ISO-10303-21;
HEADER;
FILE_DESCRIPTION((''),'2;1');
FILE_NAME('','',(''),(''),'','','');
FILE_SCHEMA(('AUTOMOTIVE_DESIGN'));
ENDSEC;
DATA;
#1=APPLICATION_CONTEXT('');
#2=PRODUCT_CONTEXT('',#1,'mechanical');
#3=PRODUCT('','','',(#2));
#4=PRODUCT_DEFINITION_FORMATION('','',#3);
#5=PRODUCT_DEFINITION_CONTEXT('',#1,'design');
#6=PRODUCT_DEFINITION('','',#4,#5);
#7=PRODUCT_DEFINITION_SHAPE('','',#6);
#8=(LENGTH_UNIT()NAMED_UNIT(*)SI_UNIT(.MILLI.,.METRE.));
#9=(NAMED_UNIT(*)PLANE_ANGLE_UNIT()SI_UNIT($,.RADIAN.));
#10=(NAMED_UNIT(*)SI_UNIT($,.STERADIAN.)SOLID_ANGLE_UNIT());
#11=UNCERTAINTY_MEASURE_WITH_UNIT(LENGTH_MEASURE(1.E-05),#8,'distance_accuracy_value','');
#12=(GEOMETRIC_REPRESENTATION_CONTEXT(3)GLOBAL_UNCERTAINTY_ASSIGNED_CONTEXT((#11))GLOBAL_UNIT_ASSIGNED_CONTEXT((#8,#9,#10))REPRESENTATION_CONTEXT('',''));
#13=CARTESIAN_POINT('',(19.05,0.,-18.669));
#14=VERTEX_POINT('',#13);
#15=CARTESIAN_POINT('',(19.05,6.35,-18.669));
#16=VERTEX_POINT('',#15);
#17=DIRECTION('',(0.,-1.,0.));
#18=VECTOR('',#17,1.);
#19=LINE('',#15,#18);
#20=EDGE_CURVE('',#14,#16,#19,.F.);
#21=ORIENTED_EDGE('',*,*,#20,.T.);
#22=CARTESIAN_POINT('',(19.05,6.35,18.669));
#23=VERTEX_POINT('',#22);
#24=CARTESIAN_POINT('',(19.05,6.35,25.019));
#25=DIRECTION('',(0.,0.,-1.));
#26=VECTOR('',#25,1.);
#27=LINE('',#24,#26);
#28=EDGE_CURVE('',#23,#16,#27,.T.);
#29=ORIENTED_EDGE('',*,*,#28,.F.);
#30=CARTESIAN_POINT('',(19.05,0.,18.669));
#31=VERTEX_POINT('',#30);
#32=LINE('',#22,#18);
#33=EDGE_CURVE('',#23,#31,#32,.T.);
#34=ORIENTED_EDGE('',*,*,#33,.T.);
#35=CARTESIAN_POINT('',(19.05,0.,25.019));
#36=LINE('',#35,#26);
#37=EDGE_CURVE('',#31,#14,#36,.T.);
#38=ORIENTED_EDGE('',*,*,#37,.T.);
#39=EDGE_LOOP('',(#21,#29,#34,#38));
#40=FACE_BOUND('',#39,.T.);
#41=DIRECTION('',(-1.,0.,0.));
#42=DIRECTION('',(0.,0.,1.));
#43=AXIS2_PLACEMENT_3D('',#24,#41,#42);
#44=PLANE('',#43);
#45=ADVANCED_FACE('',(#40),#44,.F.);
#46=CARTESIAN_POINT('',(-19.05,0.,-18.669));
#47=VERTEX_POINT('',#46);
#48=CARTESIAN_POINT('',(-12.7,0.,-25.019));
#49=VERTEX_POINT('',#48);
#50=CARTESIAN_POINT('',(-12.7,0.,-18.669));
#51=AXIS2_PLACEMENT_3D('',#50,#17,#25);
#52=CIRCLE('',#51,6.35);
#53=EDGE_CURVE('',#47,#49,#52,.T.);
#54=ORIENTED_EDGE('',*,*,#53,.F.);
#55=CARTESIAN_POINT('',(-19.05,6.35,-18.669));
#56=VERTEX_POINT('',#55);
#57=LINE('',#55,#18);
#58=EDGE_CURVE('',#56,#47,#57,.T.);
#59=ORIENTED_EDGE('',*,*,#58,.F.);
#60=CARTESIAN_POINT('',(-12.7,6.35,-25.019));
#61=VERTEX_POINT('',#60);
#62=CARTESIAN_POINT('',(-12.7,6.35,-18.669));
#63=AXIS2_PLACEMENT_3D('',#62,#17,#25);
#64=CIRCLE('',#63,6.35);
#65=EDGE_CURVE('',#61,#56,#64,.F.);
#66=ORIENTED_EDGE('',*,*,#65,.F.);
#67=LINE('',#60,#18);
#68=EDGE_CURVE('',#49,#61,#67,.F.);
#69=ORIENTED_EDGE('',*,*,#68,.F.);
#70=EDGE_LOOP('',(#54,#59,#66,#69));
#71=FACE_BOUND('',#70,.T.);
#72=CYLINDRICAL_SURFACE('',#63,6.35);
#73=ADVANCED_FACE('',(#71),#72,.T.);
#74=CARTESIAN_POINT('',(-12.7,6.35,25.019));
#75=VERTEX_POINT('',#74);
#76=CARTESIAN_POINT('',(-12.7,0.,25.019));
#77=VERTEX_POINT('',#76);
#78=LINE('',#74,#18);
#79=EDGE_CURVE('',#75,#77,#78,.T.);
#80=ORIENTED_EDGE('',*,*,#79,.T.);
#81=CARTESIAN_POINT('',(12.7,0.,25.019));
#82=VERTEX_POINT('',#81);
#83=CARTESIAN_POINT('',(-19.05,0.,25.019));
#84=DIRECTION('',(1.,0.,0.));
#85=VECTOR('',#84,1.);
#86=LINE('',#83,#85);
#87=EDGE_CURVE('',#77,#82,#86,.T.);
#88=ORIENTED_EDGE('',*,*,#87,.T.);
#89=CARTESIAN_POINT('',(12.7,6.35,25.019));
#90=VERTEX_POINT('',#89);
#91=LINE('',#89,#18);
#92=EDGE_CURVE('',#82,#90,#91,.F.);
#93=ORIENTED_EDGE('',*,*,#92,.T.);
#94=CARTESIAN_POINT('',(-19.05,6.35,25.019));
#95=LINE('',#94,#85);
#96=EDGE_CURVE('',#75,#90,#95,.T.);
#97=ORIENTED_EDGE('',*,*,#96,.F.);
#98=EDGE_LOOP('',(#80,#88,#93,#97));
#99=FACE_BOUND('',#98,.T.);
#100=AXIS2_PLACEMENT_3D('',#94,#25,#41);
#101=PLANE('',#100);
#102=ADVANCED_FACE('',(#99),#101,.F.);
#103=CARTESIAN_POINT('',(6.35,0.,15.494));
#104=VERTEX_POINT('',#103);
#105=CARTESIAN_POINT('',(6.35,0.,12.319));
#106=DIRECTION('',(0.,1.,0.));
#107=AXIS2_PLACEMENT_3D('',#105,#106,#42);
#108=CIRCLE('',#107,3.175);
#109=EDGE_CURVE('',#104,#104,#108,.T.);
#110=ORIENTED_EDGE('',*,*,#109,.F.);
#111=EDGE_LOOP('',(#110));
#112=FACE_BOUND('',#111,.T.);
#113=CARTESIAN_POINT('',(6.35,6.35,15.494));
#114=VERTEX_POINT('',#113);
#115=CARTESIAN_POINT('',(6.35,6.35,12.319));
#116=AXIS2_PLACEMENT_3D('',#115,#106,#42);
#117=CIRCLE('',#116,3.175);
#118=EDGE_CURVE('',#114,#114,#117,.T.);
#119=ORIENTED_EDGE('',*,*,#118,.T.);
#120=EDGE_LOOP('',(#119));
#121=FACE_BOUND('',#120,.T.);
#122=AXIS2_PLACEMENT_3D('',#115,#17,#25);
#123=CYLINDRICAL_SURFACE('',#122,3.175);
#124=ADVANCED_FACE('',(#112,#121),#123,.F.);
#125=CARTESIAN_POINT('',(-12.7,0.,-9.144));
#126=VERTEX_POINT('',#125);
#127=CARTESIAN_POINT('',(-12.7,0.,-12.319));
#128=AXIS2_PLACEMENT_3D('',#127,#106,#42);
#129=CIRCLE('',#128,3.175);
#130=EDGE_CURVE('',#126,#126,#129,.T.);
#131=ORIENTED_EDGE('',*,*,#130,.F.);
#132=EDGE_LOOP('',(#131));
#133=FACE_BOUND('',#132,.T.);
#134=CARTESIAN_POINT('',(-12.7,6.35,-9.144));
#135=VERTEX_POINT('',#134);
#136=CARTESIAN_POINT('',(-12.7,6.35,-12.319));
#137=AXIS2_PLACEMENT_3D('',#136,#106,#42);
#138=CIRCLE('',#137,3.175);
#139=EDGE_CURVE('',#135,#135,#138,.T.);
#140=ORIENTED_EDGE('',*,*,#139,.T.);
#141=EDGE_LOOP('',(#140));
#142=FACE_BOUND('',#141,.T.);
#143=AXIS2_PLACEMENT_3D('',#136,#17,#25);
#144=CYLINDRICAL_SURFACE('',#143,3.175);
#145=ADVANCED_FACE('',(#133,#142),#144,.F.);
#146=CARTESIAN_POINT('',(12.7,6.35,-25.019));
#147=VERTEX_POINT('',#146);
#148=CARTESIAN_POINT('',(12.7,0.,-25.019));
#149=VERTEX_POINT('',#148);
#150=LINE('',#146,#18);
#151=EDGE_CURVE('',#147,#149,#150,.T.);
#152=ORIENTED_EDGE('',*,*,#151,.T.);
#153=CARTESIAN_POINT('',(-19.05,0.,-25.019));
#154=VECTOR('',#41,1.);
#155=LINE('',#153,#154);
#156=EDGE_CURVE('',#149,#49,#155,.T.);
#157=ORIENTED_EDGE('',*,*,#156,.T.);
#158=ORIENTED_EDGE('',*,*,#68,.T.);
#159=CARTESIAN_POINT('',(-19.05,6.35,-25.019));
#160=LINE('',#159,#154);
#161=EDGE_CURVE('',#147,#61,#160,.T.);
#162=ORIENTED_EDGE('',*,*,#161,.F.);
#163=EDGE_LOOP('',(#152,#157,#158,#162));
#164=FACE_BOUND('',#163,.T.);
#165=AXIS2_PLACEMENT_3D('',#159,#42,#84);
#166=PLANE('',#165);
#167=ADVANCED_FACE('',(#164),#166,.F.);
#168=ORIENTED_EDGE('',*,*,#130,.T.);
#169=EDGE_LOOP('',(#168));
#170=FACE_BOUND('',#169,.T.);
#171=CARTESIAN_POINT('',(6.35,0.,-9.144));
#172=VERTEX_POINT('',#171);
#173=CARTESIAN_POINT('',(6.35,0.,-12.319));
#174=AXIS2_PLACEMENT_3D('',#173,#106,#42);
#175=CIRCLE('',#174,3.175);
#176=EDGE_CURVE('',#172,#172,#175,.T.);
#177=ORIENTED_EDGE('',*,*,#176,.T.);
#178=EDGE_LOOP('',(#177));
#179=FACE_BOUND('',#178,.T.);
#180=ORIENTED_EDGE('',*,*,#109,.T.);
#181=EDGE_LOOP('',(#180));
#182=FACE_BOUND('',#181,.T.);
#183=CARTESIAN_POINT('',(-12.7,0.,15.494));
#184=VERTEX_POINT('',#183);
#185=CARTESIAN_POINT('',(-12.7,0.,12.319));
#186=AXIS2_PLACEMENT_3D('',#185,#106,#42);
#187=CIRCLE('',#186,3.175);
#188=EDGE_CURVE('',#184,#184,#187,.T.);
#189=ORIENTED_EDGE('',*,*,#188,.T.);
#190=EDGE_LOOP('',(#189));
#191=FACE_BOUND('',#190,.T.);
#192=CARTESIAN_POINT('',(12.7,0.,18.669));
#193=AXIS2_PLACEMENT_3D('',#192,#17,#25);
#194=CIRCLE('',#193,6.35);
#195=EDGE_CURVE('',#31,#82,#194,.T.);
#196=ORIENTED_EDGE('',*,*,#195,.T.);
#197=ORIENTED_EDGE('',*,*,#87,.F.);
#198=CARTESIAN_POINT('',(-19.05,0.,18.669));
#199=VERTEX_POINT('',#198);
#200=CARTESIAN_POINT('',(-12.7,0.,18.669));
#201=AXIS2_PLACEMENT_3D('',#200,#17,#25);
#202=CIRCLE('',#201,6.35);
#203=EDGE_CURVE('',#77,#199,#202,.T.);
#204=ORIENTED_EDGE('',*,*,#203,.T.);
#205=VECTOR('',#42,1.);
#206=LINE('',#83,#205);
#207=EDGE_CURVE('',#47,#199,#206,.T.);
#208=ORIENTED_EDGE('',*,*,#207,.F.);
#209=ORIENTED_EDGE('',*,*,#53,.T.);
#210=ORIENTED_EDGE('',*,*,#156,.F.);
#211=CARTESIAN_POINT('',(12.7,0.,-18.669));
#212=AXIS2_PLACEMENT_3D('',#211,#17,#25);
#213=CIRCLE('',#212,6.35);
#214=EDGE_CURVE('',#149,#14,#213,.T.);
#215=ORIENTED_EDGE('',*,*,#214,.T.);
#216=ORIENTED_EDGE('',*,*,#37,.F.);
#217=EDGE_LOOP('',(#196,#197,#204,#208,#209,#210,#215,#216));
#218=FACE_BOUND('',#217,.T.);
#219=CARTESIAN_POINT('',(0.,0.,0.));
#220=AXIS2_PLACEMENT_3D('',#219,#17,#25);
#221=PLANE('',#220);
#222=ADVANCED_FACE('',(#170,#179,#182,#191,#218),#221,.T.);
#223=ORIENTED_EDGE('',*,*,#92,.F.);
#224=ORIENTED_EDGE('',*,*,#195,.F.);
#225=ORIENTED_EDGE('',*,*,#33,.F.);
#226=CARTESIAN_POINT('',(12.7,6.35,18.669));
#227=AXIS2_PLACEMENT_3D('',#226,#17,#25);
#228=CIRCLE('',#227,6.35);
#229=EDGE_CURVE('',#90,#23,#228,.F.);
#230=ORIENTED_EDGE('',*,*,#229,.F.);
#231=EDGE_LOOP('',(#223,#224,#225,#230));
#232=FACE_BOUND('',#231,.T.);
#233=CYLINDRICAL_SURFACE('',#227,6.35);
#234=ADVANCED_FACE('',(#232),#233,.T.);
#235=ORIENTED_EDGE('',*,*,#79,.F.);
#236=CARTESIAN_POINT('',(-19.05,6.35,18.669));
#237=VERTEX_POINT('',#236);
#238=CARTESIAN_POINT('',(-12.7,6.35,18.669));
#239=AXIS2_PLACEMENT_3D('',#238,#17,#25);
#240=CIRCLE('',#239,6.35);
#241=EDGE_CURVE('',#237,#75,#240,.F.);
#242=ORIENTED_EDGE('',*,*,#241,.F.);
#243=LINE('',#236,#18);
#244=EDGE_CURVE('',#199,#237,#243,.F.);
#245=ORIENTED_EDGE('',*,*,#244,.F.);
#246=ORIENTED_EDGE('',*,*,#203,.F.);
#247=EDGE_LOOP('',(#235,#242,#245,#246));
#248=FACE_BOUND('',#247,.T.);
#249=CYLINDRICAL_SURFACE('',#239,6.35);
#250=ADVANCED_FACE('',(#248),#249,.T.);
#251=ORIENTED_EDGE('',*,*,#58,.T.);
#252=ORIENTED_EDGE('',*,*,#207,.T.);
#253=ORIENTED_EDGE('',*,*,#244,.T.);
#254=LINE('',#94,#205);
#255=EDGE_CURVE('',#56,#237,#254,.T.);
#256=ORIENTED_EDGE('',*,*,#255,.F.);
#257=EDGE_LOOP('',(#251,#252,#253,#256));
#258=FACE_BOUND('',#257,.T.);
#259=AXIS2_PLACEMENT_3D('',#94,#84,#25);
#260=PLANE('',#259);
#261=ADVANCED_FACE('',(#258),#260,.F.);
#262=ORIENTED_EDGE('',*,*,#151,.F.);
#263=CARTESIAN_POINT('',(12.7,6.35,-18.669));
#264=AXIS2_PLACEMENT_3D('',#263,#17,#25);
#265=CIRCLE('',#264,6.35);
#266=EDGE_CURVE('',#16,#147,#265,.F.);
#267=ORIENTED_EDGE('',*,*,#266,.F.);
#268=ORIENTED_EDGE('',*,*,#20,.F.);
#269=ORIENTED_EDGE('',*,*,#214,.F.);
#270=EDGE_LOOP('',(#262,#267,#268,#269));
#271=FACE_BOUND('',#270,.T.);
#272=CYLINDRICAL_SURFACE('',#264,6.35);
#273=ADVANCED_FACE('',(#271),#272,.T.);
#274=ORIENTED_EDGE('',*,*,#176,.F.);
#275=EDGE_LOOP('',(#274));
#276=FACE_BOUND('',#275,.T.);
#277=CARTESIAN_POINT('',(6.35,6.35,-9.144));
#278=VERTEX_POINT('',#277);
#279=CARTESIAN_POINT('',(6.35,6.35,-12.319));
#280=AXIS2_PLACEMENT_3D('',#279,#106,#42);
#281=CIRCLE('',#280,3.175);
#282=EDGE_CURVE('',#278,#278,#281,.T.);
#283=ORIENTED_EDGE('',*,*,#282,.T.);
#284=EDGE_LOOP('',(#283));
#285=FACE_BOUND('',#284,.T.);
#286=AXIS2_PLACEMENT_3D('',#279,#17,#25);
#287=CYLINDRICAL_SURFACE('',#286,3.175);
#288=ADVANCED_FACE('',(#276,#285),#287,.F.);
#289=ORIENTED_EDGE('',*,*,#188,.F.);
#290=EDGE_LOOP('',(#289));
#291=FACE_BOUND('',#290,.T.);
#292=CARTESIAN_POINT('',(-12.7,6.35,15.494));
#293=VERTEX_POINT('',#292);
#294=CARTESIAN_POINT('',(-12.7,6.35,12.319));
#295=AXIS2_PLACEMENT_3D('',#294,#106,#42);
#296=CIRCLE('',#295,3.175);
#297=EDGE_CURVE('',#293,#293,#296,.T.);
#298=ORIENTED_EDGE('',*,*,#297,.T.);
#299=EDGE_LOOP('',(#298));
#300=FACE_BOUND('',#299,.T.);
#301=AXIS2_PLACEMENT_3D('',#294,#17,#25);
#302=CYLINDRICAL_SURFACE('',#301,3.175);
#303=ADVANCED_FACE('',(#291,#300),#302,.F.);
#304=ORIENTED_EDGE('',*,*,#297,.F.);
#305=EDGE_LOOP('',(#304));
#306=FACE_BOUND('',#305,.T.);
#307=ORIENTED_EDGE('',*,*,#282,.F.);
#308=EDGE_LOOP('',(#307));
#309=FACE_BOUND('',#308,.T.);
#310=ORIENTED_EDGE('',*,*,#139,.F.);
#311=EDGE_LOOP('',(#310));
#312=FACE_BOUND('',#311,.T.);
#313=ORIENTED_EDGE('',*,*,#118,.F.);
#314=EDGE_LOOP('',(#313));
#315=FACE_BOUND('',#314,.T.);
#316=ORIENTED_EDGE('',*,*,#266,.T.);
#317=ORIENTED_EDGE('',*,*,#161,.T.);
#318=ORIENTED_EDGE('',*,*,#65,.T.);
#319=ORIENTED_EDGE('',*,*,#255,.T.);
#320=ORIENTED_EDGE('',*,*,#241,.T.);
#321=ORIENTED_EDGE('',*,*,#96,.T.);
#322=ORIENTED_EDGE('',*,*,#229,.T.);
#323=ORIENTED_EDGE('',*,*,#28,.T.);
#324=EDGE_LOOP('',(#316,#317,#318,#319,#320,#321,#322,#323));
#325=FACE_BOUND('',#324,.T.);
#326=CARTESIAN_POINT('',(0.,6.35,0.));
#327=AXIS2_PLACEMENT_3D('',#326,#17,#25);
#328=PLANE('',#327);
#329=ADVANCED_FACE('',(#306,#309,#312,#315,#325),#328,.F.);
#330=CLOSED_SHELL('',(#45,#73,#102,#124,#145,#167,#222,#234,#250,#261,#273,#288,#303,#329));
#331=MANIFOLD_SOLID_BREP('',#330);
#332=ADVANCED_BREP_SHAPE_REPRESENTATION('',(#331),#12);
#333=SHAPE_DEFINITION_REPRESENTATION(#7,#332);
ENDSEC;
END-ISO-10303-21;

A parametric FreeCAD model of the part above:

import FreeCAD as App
import Part
import Sketcher
Q = App.Units.Quantity


def edges_at(feature, points):
    """Names of the edges that pass closest to the given points."""
    edges = feature.Shape.Edges
    near = lambda p: min(range(len(edges)), key=lambda i: edges[i].distToShape(Part.Vertex(*p))[0])
    return sorted({f"Edge{near(p) + 1}" for p in points})

doc = App.newDocument("Part")
body = doc.addObject("PartDesign::Body", "Body")

# Sketch on XZ plane
sketch1 = doc.addObject("Sketcher::SketchObject", "Sketch")
body.addObject(sketch1)
sketch1.AttachmentSupport = (doc.XZ_Plane, [""])
sketch1.MapMode = "FlatFace"
sketch1.addGeometry([
    Part.LineSegment(App.Vector(-19.05, -25.019, 0), App.Vector(-19.05, 25.019, 0)),  # 0
    Part.LineSegment(App.Vector(-19.05, 25.019, 0), App.Vector(19.05, 25.019, 0)),  # 1
    Part.LineSegment(App.Vector(19.05, 25.019, 0), App.Vector(19.05, -25.019, 0)),  # 2
    Part.LineSegment(App.Vector(19.05, -25.019, 0), App.Vector(-19.05, -25.019, 0)),  # 3
    Part.Circle(App.Vector(-12.7, 12.319, 0), App.Vector(0, 0, 1), 3.175),  # 4
    Part.Circle(App.Vector(6.35, 12.319, 0), App.Vector(0, 0, 1), 3.175),  # 5
    Part.Circle(App.Vector(-12.7, -12.319, 0), App.Vector(0, 0, 1), 3.175),  # 6
    Part.Circle(App.Vector(6.35, -12.319, 0), App.Vector(0, 0, 1), 3.175),  # 7
], False)
sketch1.addConstraint([
    Sketcher.Constraint("Coincident", 0, 2, 1, 1),
    Sketcher.Constraint("Coincident", 1, 2, 2, 1),
    Sketcher.Constraint("Coincident", 2, 2, 3, 1),
    Sketcher.Constraint("Coincident", 3, 2, 0, 1),
    Sketcher.Constraint("Vertical", 0),
    Sketcher.Constraint("Horizontal", 1),
    Sketcher.Constraint("Vertical", 2),
    Sketcher.Constraint("Horizontal", 3),
    Sketcher.Constraint("Equal", 4, 5),
    Sketcher.Constraint("Equal", 5, 6),
    Sketcher.Constraint("Equal", 6, 7),
    Sketcher.Constraint("Symmetric", 0, 2, 2, 2, -1, 1),
    Sketcher.Constraint("Symmetric", 4, 3, 6, 3, -1),
    Sketcher.Constraint("Symmetric", 5, 3, 7, 3, -1),
    Sketcher.Constraint("Horizontal", 4, 3, 5, 3),
    Sketcher.Constraint("Diameter", 4, Q("0.25 in")),
    Sketcher.Constraint("DistanceX", 1, 1, 1, 2, Q("1.5 in")),
    Sketcher.Constraint("DistanceX", 0, 2, 5, 3, Q("1 in")),
    Sketcher.Constraint("DistanceY", 0, 1, 0, 2, Q("1.97 in")),
    Sketcher.Constraint("DistanceX", 4, 3, -1, 1, Q("0.5 in")),
    Sketcher.Constraint("DistanceY", 4, 3, 0, 2, Q("0.5 in")),
])
pad1 = doc.addObject("PartDesign::Pad", "Pad")
body.addObject(pad1)
pad1.Profile = sketch1
pad1.Length = Q("0.25 in")
pad1.Reversed = True
doc.recompute()

fillet = doc.addObject("PartDesign::Fillet", "Fillet")
body.addObject(fillet)
fillet.Base = (pad1, edges_at(pad1, [
    (19.05, 3.175, 25.019),
    (-19.05, 3.175, 25.019),
    (-19.05, 3.175, -25.019),
    (19.05, 3.175, -25.019),
]))
fillet.Radius = Q("0.25 in")

doc.recompute()
